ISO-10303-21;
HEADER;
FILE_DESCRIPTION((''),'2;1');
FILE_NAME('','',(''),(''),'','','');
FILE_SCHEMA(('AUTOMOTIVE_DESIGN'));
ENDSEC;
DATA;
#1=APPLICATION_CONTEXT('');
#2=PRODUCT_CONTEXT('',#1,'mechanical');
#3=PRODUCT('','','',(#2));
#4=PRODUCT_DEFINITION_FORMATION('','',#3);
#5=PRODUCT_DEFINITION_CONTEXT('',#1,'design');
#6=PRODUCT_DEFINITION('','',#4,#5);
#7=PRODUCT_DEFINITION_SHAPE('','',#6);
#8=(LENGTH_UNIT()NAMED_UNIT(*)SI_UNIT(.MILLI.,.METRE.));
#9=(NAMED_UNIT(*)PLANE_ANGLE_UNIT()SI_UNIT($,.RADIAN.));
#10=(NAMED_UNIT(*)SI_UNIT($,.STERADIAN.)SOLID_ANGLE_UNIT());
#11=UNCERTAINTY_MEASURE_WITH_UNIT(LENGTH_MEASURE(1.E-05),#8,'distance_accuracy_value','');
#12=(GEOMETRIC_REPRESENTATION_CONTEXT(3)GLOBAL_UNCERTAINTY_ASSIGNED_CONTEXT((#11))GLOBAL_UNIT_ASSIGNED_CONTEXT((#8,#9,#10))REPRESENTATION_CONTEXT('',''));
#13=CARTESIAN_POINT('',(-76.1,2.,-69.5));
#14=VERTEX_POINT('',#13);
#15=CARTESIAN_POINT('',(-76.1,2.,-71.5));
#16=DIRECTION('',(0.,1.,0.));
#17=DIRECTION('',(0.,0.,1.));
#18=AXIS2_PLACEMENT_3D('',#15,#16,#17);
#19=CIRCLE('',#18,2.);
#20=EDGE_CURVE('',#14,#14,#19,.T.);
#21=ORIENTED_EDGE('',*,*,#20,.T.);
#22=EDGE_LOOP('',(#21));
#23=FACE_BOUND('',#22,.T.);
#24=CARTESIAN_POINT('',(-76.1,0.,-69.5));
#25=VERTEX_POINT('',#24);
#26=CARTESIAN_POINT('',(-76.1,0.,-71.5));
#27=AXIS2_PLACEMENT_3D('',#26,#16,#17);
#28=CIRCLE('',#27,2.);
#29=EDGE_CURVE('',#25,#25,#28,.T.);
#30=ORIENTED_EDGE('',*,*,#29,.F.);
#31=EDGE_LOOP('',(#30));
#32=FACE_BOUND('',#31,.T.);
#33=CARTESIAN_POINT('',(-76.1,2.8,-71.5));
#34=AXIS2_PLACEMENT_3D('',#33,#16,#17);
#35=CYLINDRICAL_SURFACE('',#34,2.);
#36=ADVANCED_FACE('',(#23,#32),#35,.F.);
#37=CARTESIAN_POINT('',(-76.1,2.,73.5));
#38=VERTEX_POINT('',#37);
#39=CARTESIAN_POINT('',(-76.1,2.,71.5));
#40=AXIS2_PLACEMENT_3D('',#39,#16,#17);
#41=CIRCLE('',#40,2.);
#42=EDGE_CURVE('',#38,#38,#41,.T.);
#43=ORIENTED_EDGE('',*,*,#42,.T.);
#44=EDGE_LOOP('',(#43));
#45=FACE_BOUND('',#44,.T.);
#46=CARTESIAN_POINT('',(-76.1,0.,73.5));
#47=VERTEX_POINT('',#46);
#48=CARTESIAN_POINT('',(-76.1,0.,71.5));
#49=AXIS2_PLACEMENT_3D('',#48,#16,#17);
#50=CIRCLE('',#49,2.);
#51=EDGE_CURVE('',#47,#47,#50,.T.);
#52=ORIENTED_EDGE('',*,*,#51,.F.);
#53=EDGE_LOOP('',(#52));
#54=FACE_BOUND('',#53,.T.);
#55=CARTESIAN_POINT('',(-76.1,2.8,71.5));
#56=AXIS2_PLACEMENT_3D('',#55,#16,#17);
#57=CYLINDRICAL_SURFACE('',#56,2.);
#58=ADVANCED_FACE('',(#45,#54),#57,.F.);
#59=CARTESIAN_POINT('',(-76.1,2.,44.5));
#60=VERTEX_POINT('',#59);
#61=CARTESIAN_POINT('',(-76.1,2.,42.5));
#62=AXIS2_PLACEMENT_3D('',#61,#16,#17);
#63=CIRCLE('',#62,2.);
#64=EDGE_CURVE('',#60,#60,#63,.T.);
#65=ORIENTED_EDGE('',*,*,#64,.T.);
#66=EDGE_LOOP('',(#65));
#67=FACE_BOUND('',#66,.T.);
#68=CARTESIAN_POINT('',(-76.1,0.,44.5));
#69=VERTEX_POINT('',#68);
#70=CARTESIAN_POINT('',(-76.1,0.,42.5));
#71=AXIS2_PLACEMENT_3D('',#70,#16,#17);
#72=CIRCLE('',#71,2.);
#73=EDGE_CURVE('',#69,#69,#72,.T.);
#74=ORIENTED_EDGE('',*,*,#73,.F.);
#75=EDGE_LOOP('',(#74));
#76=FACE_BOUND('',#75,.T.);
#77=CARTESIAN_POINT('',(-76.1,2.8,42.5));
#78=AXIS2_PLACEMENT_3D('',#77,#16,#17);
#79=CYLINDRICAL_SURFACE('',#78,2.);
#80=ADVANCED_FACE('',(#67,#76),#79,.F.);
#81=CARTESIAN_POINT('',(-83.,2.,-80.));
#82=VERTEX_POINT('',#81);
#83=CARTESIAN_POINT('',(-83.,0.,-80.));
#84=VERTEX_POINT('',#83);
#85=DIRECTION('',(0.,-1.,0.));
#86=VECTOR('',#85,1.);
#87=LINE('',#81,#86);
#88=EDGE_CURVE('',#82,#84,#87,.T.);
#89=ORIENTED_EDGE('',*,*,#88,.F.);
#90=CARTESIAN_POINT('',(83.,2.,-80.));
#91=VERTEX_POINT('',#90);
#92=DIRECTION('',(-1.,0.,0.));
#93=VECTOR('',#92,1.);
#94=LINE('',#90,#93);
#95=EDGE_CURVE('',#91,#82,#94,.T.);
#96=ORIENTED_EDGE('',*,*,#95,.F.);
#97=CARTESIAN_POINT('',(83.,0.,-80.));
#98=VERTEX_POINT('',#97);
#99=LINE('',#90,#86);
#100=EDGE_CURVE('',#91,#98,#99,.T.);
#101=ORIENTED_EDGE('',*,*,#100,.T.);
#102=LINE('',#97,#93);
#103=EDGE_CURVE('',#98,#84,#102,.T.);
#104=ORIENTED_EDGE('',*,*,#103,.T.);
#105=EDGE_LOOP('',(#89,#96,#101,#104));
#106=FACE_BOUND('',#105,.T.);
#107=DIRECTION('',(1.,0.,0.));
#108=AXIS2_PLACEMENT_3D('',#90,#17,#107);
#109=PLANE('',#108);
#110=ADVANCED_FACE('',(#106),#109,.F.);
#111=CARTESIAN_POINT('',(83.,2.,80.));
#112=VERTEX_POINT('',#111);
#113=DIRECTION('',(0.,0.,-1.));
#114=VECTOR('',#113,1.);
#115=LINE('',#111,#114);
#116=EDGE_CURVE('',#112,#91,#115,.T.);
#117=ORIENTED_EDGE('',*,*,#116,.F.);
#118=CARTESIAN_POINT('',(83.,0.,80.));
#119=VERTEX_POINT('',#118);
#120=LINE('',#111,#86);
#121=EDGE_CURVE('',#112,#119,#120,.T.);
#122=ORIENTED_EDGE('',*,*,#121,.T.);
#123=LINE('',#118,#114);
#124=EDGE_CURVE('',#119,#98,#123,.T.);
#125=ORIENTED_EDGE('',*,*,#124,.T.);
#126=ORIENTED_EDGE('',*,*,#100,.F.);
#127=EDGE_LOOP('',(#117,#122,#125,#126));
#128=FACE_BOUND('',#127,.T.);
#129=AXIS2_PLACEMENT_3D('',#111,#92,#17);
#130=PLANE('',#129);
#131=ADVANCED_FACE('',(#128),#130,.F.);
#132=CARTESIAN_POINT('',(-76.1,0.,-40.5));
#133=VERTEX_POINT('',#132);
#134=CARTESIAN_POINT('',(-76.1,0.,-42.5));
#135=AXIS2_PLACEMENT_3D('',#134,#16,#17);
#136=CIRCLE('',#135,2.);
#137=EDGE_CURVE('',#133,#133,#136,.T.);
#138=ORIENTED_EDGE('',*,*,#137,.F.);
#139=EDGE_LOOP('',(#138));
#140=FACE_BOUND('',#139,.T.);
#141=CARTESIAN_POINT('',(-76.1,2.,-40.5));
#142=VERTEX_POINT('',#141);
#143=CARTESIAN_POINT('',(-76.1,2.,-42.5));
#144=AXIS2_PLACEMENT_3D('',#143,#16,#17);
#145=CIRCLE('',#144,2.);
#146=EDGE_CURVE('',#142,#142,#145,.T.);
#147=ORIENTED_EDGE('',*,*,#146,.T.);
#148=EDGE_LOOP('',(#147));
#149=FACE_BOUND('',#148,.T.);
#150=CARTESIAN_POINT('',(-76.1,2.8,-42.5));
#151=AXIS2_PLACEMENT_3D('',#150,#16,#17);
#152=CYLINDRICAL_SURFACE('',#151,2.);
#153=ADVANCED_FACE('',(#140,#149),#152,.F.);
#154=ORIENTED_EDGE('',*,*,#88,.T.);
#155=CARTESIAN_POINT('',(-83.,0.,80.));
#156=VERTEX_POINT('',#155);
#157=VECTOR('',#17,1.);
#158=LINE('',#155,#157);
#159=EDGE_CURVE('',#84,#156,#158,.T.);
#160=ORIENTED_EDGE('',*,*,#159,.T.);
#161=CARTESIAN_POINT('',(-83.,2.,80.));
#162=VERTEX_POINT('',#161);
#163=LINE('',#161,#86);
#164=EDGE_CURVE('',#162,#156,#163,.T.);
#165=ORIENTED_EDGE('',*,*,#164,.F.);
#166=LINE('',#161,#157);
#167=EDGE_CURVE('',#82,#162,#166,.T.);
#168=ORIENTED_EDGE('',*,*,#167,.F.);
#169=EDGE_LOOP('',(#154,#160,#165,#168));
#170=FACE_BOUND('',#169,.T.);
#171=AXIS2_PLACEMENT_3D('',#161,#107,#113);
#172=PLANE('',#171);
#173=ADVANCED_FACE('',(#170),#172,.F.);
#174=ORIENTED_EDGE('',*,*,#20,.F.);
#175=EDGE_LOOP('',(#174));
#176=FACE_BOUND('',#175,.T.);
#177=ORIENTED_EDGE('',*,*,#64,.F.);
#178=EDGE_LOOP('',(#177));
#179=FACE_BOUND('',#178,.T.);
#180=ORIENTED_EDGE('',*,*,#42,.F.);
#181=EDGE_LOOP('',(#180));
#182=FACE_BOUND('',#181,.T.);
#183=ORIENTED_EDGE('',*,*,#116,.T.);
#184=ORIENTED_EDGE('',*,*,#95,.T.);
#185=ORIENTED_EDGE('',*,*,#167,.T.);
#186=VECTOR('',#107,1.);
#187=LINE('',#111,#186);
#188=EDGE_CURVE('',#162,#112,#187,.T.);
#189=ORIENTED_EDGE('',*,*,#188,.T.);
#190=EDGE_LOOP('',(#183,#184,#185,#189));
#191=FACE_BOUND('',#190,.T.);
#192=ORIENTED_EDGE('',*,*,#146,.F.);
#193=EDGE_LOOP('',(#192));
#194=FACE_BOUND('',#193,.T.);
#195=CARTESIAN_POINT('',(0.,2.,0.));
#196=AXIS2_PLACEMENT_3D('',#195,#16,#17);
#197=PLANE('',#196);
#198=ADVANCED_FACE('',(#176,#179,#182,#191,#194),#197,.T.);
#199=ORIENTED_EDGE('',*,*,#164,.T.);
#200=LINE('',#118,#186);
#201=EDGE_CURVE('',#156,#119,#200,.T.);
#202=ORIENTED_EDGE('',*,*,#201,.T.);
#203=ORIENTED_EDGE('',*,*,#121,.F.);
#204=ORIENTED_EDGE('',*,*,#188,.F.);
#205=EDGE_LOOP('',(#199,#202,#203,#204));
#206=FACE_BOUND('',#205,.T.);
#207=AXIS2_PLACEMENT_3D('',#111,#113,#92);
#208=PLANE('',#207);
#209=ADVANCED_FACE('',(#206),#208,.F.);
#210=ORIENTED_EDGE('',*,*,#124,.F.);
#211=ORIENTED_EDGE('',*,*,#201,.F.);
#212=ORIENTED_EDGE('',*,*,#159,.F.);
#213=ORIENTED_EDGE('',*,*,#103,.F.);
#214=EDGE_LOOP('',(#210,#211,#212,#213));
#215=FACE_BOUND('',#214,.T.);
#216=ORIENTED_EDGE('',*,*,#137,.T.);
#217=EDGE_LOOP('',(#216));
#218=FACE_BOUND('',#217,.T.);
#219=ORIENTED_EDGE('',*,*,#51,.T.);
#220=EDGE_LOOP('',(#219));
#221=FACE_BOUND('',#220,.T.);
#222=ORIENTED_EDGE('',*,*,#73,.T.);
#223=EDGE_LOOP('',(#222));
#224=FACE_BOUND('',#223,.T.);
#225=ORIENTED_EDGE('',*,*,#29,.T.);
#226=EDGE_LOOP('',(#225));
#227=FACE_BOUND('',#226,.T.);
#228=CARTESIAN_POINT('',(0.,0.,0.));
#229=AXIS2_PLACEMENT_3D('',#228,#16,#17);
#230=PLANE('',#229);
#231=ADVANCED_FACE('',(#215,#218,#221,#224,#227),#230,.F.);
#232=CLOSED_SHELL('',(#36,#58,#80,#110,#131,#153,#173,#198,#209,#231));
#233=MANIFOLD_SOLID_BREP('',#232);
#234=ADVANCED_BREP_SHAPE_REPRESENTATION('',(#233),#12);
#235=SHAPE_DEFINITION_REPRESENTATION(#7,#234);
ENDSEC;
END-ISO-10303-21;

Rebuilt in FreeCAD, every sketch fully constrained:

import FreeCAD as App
import Part
import Sketcher
Q = App.Units.Quantity


def add_polygon(sketch, points):
    """Adds a closed chain of lines whose ends are joined by coincident constraints."""
    first, n = sketch.GeometryCount, len(points)
    for a, b in zip(points, points[1:] + points[:1]):
        sketch.addGeometry(Part.LineSegment(App.Vector(*a, 0), App.Vector(*b, 0)), False)
    for i in range(n):
        sketch.addConstraint(Sketcher.Constraint("Coincident", first + i, 2, first + (i + 1) % n, 1))

doc = App.newDocument("Part")
body = doc.addObject("PartDesign::Body", "Body")

sketch1 = body.newObject("Sketcher::SketchObject", "Sketch")
sketch1.AttachmentSupport = (doc.getObject("XZ_Plane"), [""])
sketch1.MapMode = "FlatFace"
add_polygon(sketch1, [(-83, -80), (-83, 80), (83, 80), (83, -80)])
sketch1.addConstraint(Sketcher.Constraint("Vertical", 0))
sketch1.addConstraint(Sketcher.Constraint("Horizontal", 1))
sketch1.addConstraint(Sketcher.Constraint("Vertical", 2))
sketch1.addConstraint(Sketcher.Constraint("Horizontal", 3))
sketch1.addConstraint(Sketcher.Constraint("Symmetric", 0, 2, 2, 2, -1, 1))
sketch1.addConstraint(Sketcher.Constraint("DistanceX", 1, 1, 1, 2, Q("166 mm")))
sketch1.addConstraint(Sketcher.Constraint("DistanceY", 0, 1, 0, 2, Q("160 mm")))
pad1 = body.newObject("PartDesign::Pad", "Pad")
pad1.Profile = sketch1
pad1.Length = 2
pad1.Reversed = True

sketch2 = body.newObject("Sketcher::SketchObject", "Sketch001")
sketch2.AttachmentSupport = (doc.getObject("XZ_Plane"), [""])
sketch2.MapMode = "FlatFace"
sketch2.AttachmentOffset = App.Placement(App.Vector(0, 0, -2.8), App.Rotation())
sketch2.addGeometry(Part.Circle(App.Vector(-89.5, 71.5, 0), App.Vector(0, 0, 1), 2), False)
sketch2.addGeometry(Part.Circle(App.Vector(-76.1, 71.5, 0), App.Vector(0, 0, 1), 2), False)
sketch2.addGeometry(Part.Circle(App.Vector(-76.1, 42.5, 0), App.Vector(0, 0, 1), 2), False)
sketch2.addGeometry(Part.Circle(App.Vector(-89.5, 42.5, 0), App.Vector(0, 0, 1), 2), False)
sketch2.addGeometry(Part.Circle(App.Vector(-89.5, -71.5, 0), App.Vector(0, 0, 1), 2), False)
sketch2.addGeometry(Part.Circle(App.Vector(-89.5, -42.5, 0), App.Vector(0, 0, 1), 2), False)
sketch2.addGeometry(Part.Circle(App.Vector(-76.1, -42.5, 0), App.Vector(0, 0, 1), 2), False)
sketch2.addGeometry(Part.Circle(App.Vector(-76.1, -71.5, 0), App.Vector(0, 0, 1), 2), False)
sketch2.addConstraint(Sketcher.Constraint("Equal", 0, 1))
sketch2.addConstraint(Sketcher.Constraint("Equal", 1, 2))
sketch2.addConstraint(Sketcher.Constraint("Equal", 2, 3))
sketch2.addConstraint(Sketcher.Constraint("Equal", 3, 4))
sketch2.addConstraint(Sketcher.Constraint("Equal", 4, 5))
sketch2.addConstraint(Sketcher.Constraint("Equal", 5, 6))
sketch2.addConstraint(Sketcher.Constraint("Equal", 6, 7))
sketch2.addConstraint(Sketcher.Constraint("Symmetric", 0, 3, 4, 3, -1))
sketch2.addConstraint(Sketcher.Constraint("Symmetric", 3, 3, 5, 3, -1))
sketch2.addConstraint(Sketcher.Constraint("Symmetric", 2, 3, 6, 3, -1))
sketch2.addConstraint(Sketcher.Constraint("Symmetric", 1, 3, 7, 3, -1))
sketch2.addConstraint(Sketcher.Constraint("Horizontal", 0, 3, 1, 3))
sketch2.addConstraint(Sketcher.Constraint("Horizontal", 2, 3, 3, 3))
sketch2.addConstraint(Sketcher.Constraint("Vertical", 1, 3, 2, 3))
sketch2.addConstraint(Sketcher.Constraint("Vertical", 0, 3, 3, 3))
sketch2.addConstraint(Sketcher.Constraint("Diameter", 0, Q("4 mm")))
sketch2.addConstraint(Sketcher.Constraint("DistanceY", 2, 3, 1, 3, Q("29 mm")))
sketch2.addConstraint(Sketcher.Constraint("DistanceY", 4, 3, 3, 3, Q("114 mm")))
sketch2.addConstraint(Sketcher.Constraint("DistanceX", 0, 3, -1, 1, Q("89.5 mm")))
sketch2.addConstraint(Sketcher.Constraint("DistanceX", 1, 3, -1, 1, Q("76.1 mm")))
doc.recompute()
hole = body.newObject("PartDesign::Hole", "Hole")
hole.Profile = sketch2
hole.ThreadType = "None"
hole.Diameter = 4
hole.DepthType = "Dimension"
hole.Depth = 10
hole.DrillPoint = "Angled"
hole.DrillPointAngle = 118
hole.Reversed = True

doc.recompute()
